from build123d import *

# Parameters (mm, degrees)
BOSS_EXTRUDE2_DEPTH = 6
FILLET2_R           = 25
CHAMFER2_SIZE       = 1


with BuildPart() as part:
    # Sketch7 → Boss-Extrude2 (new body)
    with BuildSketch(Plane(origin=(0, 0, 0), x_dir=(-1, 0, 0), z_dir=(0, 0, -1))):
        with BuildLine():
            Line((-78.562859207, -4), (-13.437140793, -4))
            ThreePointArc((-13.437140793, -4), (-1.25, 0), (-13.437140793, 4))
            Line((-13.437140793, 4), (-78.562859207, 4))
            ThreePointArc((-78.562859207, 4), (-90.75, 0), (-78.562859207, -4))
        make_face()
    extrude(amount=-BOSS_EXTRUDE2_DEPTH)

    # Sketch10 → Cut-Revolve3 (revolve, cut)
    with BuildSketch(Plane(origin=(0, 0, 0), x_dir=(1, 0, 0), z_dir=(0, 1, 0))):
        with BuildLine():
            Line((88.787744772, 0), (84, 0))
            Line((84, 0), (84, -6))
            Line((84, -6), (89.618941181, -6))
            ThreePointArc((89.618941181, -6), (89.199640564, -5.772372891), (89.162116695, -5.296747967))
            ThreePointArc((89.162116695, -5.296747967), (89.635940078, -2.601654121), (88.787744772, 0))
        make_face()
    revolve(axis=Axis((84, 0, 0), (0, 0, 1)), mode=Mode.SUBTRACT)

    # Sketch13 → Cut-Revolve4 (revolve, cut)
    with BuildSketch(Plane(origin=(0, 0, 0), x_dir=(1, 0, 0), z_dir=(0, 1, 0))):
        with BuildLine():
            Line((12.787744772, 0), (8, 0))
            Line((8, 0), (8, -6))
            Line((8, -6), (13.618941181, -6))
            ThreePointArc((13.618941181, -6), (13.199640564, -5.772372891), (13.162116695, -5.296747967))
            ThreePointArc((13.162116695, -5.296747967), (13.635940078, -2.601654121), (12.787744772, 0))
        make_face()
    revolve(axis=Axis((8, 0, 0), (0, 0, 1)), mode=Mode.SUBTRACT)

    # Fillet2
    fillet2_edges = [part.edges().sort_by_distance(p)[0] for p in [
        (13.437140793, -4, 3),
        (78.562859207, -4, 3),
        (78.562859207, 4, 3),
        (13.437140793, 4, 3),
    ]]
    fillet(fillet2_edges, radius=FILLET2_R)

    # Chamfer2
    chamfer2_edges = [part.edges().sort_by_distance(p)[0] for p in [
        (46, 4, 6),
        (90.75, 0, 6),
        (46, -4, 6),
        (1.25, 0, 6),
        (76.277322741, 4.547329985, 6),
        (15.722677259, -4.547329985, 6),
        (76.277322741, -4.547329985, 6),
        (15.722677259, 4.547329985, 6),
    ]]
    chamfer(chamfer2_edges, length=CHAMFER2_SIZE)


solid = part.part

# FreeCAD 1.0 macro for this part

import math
import FreeCAD as App
import Part
import Sketcher
from FreeCAD import Vector


def edges_at(feature, points):
    """Names of the edges that pass closest to the given points."""
    edges = feature.Shape.Edges
    near = lambda p: min(range(len(edges)), key=lambda i: edges[i].distToShape(Part.Vertex(*p))[0])
    return sorted({f"Edge{near(p) + 1}" for p in points})

doc = App.newDocument("Part")
body = doc.addObject("PartDesign::Body", "Body")

# Sketch on XY plane
sketch1 = doc.addObject("Sketcher::SketchObject", "Sketch")
body.addObject(sketch1)
sketch1.AttachmentSupport = (doc.XY_Plane, [""])
sketch1.MapMode = "FlatFace"
sketch1.addGeometry(Part.LineSegment(Vector(79, -4, 0), Vector(13, -4, 0)), False)
sketch1.addGeometry(Part.ArcOfCircle(Part.Circle(Vector(8, 0, 0), Vector(0, 0, 1), 7), math.radians(36), math.radians(324)), False)
sketch1.addGeometry(Part.LineSegment(Vector(13, 4, 0), Vector(79, 4, 0)), False)
sketch1.addGeometry(Part.ArcOfCircle(Part.Circle(Vector(84, 0, 0), Vector(0, 0, 1), 7), math.radians(-144), math.radians(144)), False)
sketch1.addConstraint(Sketcher.Constraint("Coincident", 0, 2, 1, 2))
sketch1.addConstraint(Sketcher.Constraint("Coincident", 1, 1, 2, 1))
sketch1.addConstraint(Sketcher.Constraint("Coincident", 2, 2, 3, 2))
sketch1.addConstraint(Sketcher.Constraint("Coincident", 3, 1, 0, 1))
sketch1.addConstraint(Sketcher.Constraint("Horizontal", 0))
sketch1.addConstraint(Sketcher.Constraint("Horizontal", 2))
sketch1.addConstraint(Sketcher.Constraint("Equal", 1, 3))
sketch1.addConstraint(Sketcher.Constraint("Symmetric", 0, 2, 1, 1, -1))
sketch1.addConstraint(Sketcher.Constraint("PointOnObject", 3, 3, -1))
sketch1.addConstraint(Sketcher.Constraint("Radius", 1, 6.75))
sketch1.addConstraint(Sketcher.Constraint("DistanceX", -1, 1, 1, 3, 8.0))
sketch1.addConstraint(Sketcher.Constraint("DistanceX", -1, 1, 3, 3, 84.0))
sketch1.addConstraint(Sketcher.Constraint("DistanceY", 0, 2, -1, 1, 4.0))
pad1 = doc.addObject("PartDesign::Pad", "Pad")
body.addObject(pad1)
pad1.Profile = sketch1
pad1.Length = 6

# Sketch on XZ plane
sketch2 = doc.addObject("Sketcher::SketchObject", "Sketch001")
body.addObject(sketch2)
sketch2.AttachmentSupport = (doc.XZ_Plane, [""])
sketch2.MapMode = "FlatFace"
sketch2.addGeometry(Part.LineSegment(Vector(88.8, 0, 0), Vector(84, 0, 0)), False)
sketch2.addGeometry(Part.LineSegment(Vector(84, 0, 0), Vector(84, 6, 0)), False)
sketch2.addGeometry(Part.LineSegment(Vector(84, 6, 0), Vector(89.6, 6, 0)), False)
sketch2.addGeometry(Part.ArcOfCircle(Part.Circle(Vector(89.6, 5.5, 0), Vector(0, 0, 1), 0.5), math.radians(90), math.radians(204)), False)
sketch2.addGeometry(Part.ArcOfCircle(Part.Circle(Vector(84, 3, 0), Vector(0, 0, 1), 5.6), math.radians(-32), math.radians(24)), False)
sketch2.addGeometry(Part.LineSegment(Vector(84, 0, 0), Vector(84, 6, 0)), True)  # axis
sketch2.addConstraint(Sketcher.Constraint("Coincident", 0, 2, 1, 1))
sketch2.addConstraint(Sketcher.Constraint("Coincident", 1, 2, 2, 1))
sketch2.addConstraint(Sketcher.Constraint("Tangent", 2, 2, 3, 1))
sketch2.addConstraint(Sketcher.Constraint("Tangent", 3, 2, 4, 2))
sketch2.addConstraint(Sketcher.Constraint("Coincident", 4, 1, 0, 1))
sketch2.addConstraint(Sketcher.Constraint("Horizontal", 0))
sketch2.addConstraint(Sketcher.Constraint("Vertical", 1))
sketch2.addConstraint(Sketcher.Constraint("Horizontal", 2))
sketch2.addConstraint(Sketcher.Constraint("Vertical", 5))
sketch2.addConstraint(Sketcher.Constraint("Coincident", 5, 1, 0, 2))
sketch2.addConstraint(Sketcher.Constraint("PointOnObject", 0, 2, -1))
sketch2.addConstraint(Sketcher.Constraint("Horizontal", 2, 2, 5, 2))
sketch2.addConstraint(Sketcher.Constraint("Vertical", 4, 3, 0, 2))
sketch2.addConstraint(Sketcher.Constraint("Radius", 3, 0.5))
sketch2.addConstraint(Sketcher.Constraint("DistanceY", 1, 1, 1, 2, 6.0))
sketch2.addConstraint(Sketcher.Constraint("Radius", 4, 5.65))
sketch2.addConstraint(Sketcher.Constraint("DistanceX", -1, 1, 4, 3, 84.0))
sketch2.addConstraint(Sketcher.Constraint("DistanceY", -1, 1, 4, 3, 3.0))
groove = doc.addObject("PartDesign::Groove", "Groove")
body.addObject(groove)
groove.Profile = sketch2
groove.ReferenceAxis = (sketch2, ["Axis0"])
groove.Angle = 360

# Sketch on XZ plane
sketch3 = doc.addObject("Sketcher::SketchObject", "Sketch002")
body.addObject(sketch3)
sketch3.AttachmentSupport = (doc.XZ_Plane, [""])
sketch3.MapMode = "FlatFace"
sketch3.addGeometry(Part.LineSegment(Vector(12.8, 0, 0), Vector(8, 0, 0)), False)
sketch3.addGeometry(Part.LineSegment(Vector(8, 0, 0), Vector(8, 6, 0)), False)
sketch3.addGeometry(Part.LineSegment(Vector(8, 6, 0), Vector(13.6, 6, 0)), False)
sketch3.addGeometry(Part.ArcOfCircle(Part.Circle(Vector(13.6, 5.5, 0), Vector(0, 0, 1), 0.5), math.radians(90), math.radians(204)), False)
sketch3.addGeometry(Part.ArcOfCircle(Part.Circle(Vector(8, 3, 0), Vector(0, 0, 1), 5.6), math.radians(-32), math.radians(24)), False)
sketch3.addGeometry(Part.LineSegment(Vector(8, 0, 0), Vector(8, 6, 0)), True)  # axis
sketch3.addConstraint(Sketcher.Constraint("Coincident", 0, 2, 1, 1))
sketch3.addConstraint(Sketcher.Constraint("Coincident", 1, 2, 2, 1))
sketch3.addConstraint(Sketcher.Constraint("Tangent", 2, 2, 3, 1))
sketch3.addConstraint(Sketcher.Constraint("Tangent", 3, 2, 4, 2))
sketch3.addConstraint(Sketcher.Constraint("Coincident", 4, 1, 0, 1))
sketch3.addConstraint(Sketcher.Constraint("Horizontal", 0))
sketch3.addConstraint(Sketcher.Constraint("Vertical", 1))
sketch3.addConstraint(Sketcher.Constraint("Horizontal", 2))
sketch3.addConstraint(Sketcher.Constraint("Vertical", 5))
sketch3.addConstraint(Sketcher.Constraint("Coincident", 5, 1, 0, 2))
sketch3.addConstraint(Sketcher.Constraint("PointOnObject", 0, 2, -1))
sketch3.addConstraint(Sketcher.Constraint("Horizontal", 2, 2, 5, 2))
sketch3.addConstraint(Sketcher.Constraint("Vertical", 4, 3, 0, 2))
sketch3.addConstraint(Sketcher.Constraint("Radius", 3, 0.5))
sketch3.addConstraint(Sketcher.Constraint("DistanceY", 1, 1, 1, 2, 6.0))
sketch3.addConstraint(Sketcher.Constraint("Radius", 4, 5.65))
sketch3.addConstraint(Sketcher.Constraint("DistanceX", -1, 1, 4, 3, 8.0))
sketch3.addConstraint(Sketcher.Constraint("DistanceY", -1, 1, 4, 3, 3.0))
groove2 = doc.addObject("PartDesign::Groove", "Groove001")
body.addObject(groove2)
groove2.Profile = sketch3
groove2.ReferenceAxis = (sketch3, ["Axis0"])
groove2.Angle = 360
doc.recompute()

fillet = doc.addObject("PartDesign::Fillet", "Fillet")
body.addObject(fillet)
fillet.Base = (groove2, edges_at(groove2, [
    (13.437, -4, 3),
    (78.563, -4, 3),
    (78.563, 4, 3),
    (13.437, 4, 3),
]))
fillet.Radius = 25
doc.recompute()

chamfer = doc.addObject("PartDesign::Chamfer", "Chamfer")
body.addObject(chamfer)
chamfer.Base = (fillet, edges_at(fillet, [
    (46, 4, 6),
    (90.75, 0, 6),
    (46, -4, 6),
    (1.25, 0, 6),
    (76.277, 4.547, 6),
    (15.723, -4.547, 6),
    (76.277, -4.547, 6),
    (15.723, 4.547, 6),
]))
chamfer.Size = 1

doc.recompute()
